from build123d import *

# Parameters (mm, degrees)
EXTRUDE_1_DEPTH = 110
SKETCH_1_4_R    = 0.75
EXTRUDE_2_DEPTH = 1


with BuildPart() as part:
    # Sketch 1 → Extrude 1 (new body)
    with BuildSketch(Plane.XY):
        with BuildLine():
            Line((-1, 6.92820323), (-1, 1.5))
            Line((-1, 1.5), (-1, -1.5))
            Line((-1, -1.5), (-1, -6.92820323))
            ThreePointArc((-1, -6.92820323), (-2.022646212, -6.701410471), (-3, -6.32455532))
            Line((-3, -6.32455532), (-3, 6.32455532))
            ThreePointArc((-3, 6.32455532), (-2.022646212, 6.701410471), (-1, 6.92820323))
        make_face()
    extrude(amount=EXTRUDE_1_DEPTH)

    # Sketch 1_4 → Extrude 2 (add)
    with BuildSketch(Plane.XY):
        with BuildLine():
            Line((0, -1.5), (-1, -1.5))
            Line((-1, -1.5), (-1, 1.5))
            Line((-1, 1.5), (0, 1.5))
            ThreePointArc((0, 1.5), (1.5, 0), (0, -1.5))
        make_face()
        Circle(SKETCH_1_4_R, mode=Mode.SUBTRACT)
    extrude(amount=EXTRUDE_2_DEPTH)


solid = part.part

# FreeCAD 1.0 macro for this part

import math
import FreeCAD as App
import Part
import Sketcher

doc = App.newDocument("Part")
body = doc.addObject("PartDesign::Body", "Body")

sketch1 = body.newObject("Sketcher::SketchObject", "Sketch")
sketch1.AttachmentSupport = (doc.getObject("XY_Plane"), [""])
sketch1.MapMode = "FlatFace"
sketch1.addGeometry(Part.LineSegment(App.Vector(-1, -6.9, 0), App.Vector(-1, 6.9, 0)), False)
sketch1.addGeometry(Part.ArcOfCircle(Part.Circle(App.Vector(0, 0, 0), App.Vector(0, 0, 1), 7), math.radians(98.21), math.radians(115.38)), False)
sketch1.addGeometry(Part.LineSegment(App.Vector(-3, 6.3, 0), App.Vector(-3, -6.3, 0)), False)
sketch1.addGeometry(Part.ArcOfCircle(Part.Circle(App.Vector(0, 0, 0), App.Vector(0, 0, 1), 7), math.radians(-115.38), math.radians(-98.21)), False)
sketch1.addConstraint(Sketcher.Constraint("Coincident", 0, 2, 1, 1))
sketch1.addConstraint(Sketcher.Constraint("Coincident", 1, 2, 2, 1))
sketch1.addConstraint(Sketcher.Constraint("Coincident", 2, 2, 3, 1))
sketch1.addConstraint(Sketcher.Constraint("Coincident", 3, 2, 0, 1))
sketch1.addConstraint(Sketcher.Constraint("Vertical", 0))
sketch1.addConstraint(Sketcher.Constraint("Vertical", 2))
sketch1.addConstraint(Sketcher.Constraint("Coincident", 1, 3, -1, 1))
sketch1.addConstraint(Sketcher.Constraint("Coincident", 3, 3, -1, 1))
sketch1.addConstraint(Sketcher.Constraint("Equal", 1, 3))
sketch1.addConstraint(Sketcher.Constraint("Radius", 1, 7.0))
sketch1.addConstraint(Sketcher.Constraint("DistanceX", 0, 2, -1, 1, 1.0))
sketch1.addConstraint(Sketcher.Constraint("DistanceX", 1, 2, -1, 1, 3.0))
pad1 = body.newObject("PartDesign::Pad", "Pad")
pad1.Profile = sketch1
pad1.Length = 110

sketch2 = body.newObject("Sketcher::SketchObject", "Sketch001")
sketch2.AttachmentSupport = (doc.getObject("XY_Plane"), [""])
sketch2.MapMode = "FlatFace"
sketch2.addGeometry(Part.LineSegment(App.Vector(-1, -1.5, 0), App.Vector(0, -1.5, 0)), False)
sketch2.addGeometry(Part.ArcOfCircle(Part.Circle(App.Vector(0, 0, 0), App.Vector(0, 0, 1), 1.5), math.radians(-90), math.radians(90)), False)
sketch2.addGeometry(Part.LineSegment(App.Vector(0, 1.5, 0), App.Vector(-1, 1.5, 0)), False)
sketch2.addGeometry(Part.LineSegment(App.Vector(-1, 1.5, 0), App.Vector(-1, -1.5, 0)), False)
sketch2.addGeometry(Part.Circle(App.Vector(0, 0, 0), App.Vector(0, 0, 1), 0.8), False)
sketch2.addConstraint(Sketcher.Constraint("Tangent", 0, 2, 1, 1))
sketch2.addConstraint(Sketcher.Constraint("Tangent", 1, 2, 2, 1))
sketch2.addConstraint(Sketcher.Constraint("Coincident", 2, 2, 3, 1))
sketch2.addConstraint(Sketcher.Constraint("Coincident", 3, 2, 0, 1))
sketch2.addConstraint(Sketcher.Constraint("Horizontal", 0))
sketch2.addConstraint(Sketcher.Constraint("Horizontal", 2))
sketch2.addConstraint(Sketcher.Constraint("Vertical", 3))
sketch2.addConstraint(Sketcher.Constraint("Coincident", 1, 3, -1, 1))
sketch2.addConstraint(Sketcher.Constraint("Coincident", 4, 3, -1, 1))
sketch2.addConstraint(Sketcher.Constraint("Diameter", 4, 1.5))
sketch2.addConstraint(Sketcher.Constraint("Radius", 1, 1.5))
sketch2.addConstraint(Sketcher.Constraint("DistanceX", 0, 1, 0, 2, 1.0))
pad2 = body.newObject("PartDesign::Pad", "Pad001")
pad2.Profile = sketch2
pad2.Length = 1

doc.recompute()
